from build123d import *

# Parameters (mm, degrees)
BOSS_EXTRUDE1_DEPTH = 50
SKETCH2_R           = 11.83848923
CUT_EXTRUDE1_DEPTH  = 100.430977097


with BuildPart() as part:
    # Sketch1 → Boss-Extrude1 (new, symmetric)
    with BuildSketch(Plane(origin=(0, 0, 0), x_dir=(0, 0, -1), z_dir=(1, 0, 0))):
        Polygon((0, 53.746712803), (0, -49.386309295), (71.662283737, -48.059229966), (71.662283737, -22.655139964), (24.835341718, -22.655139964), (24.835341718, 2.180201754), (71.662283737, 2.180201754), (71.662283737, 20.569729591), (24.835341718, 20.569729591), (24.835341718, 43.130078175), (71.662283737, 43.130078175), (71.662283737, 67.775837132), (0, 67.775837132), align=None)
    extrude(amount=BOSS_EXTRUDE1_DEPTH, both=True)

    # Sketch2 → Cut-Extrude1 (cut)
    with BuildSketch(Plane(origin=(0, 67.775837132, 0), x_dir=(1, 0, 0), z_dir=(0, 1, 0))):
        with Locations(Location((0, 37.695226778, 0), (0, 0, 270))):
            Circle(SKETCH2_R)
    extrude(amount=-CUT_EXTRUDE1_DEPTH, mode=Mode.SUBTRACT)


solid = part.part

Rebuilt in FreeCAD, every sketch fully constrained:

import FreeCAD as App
import Part
import Sketcher

V = App.Vector

doc = App.newDocument("Part")
body = doc.addObject("PartDesign::Body", "Body")

sketch1 = body.newObject("Sketcher::SketchObject", "Sketch")
sketch1.AttachmentSupport = (doc.getObject("YZ_Plane"), [""])
sketch1.MapMode = "FlatFace"
sketch1.addGeometry(Part.LineSegment(V(-49.386309, 0, 0), V(-48.05923, -71.662284, 0)), False)
sketch1.addGeometry(Part.LineSegment(V(-48.05923, -71.662284, 0), V(-22.65514, -71.662284, 0)), False)
sketch1.addGeometry(Part.LineSegment(V(-22.65514, -71.662284, 0), V(-22.65514, -24.835342, 0)), False)
sketch1.addGeometry(Part.LineSegment(V(-22.65514, -24.835342, 0), V(2.180202, -24.835342, 0)), False)
sketch1.addGeometry(Part.LineSegment(V(2.180202, -24.835342, 0), V(2.180202, -71.662284, 0)), False)
sketch1.addGeometry(Part.LineSegment(V(2.180202, -71.662284, 0), V(20.56973, -71.662284, 0)), False)
sketch1.addGeometry(Part.LineSegment(V(20.56973, -71.662284, 0), V(20.56973, -24.835342, 0)), False)
sketch1.addGeometry(Part.LineSegment(V(20.56973, -24.835342, 0), V(43.130078, -24.835342, 0)), False)
sketch1.addGeometry(Part.LineSegment(V(43.130078, -24.835342, 0), V(43.130078, -71.662284, 0)), False)
sketch1.addGeometry(Part.LineSegment(V(43.130078, -71.662284, 0), V(67.775837, -71.662284, 0)), False)
sketch1.addGeometry(Part.LineSegment(V(67.775837, -71.662284, 0), V(67.775837, 0, 0)), False)
sketch1.addGeometry(Part.LineSegment(V(67.775837, 0, 0), V(-49.386309, 0, 0)), False)
sketch1.addConstraint(Sketcher.Constraint("Coincident", 0, 2, 1, 1))
sketch1.addConstraint(Sketcher.Constraint("Coincident", 1, 2, 2, 1))
sketch1.addConstraint(Sketcher.Constraint("Coincident", 2, 2, 3, 1))
sketch1.addConstraint(Sketcher.Constraint("Coincident", 3, 2, 4, 1))
sketch1.addConstraint(Sketcher.Constraint("Coincident", 4, 2, 5, 1))
sketch1.addConstraint(Sketcher.Constraint("Coincident", 5, 2, 6, 1))
sketch1.addConstraint(Sketcher.Constraint("Coincident", 6, 2, 7, 1))
sketch1.addConstraint(Sketcher.Constraint("Coincident", 7, 2, 8, 1))
sketch1.addConstraint(Sketcher.Constraint("Coincident", 8, 2, 9, 1))
sketch1.addConstraint(Sketcher.Constraint("Coincident", 9, 2, 10, 1))
sketch1.addConstraint(Sketcher.Constraint("Coincident", 10, 2, 11, 1))
sketch1.addConstraint(Sketcher.Constraint("Coincident", 11, 2, 0, 1))
sketch1.addConstraint(Sketcher.Constraint("Horizontal", 1))
sketch1.addConstraint(Sketcher.Constraint("Vertical", 2))
sketch1.addConstraint(Sketcher.Constraint("Horizontal", 3))
sketch1.addConstraint(Sketcher.Constraint("Vertical", 4))
sketch1.addConstraint(Sketcher.Constraint("Horizontal", 5))
sketch1.addConstraint(Sketcher.Constraint("Vertical", 6))
sketch1.addConstraint(Sketcher.Constraint("Horizontal", 7))
sketch1.addConstraint(Sketcher.Constraint("Vertical", 8))
sketch1.addConstraint(Sketcher.Constraint("Horizontal", 9))
sketch1.addConstraint(Sketcher.Constraint("Vertical", 10))
sketch1.addConstraint(Sketcher.Constraint("Horizontal", 11))
sketch1.addConstraint(Sketcher.Constraint("PointOnObject", 10, 2, -1))
sketch1.addConstraint(Sketcher.Constraint("Horizontal", 1, 2, 4, 2))
sketch1.addConstraint(Sketcher.Constraint("Horizontal", 3, 2, 6, 2))
sketch1.addConstraint(Sketcher.Constraint("Horizontal", 5, 2, 8, 2))
sketch1.addConstraint(Sketcher.Constraint("DistanceX", 1, 1, 1, 2, 25.40409))
sketch1.addConstraint(Sketcher.Constraint("DistanceX", 3, 1, 3, 2, 24.835342))
sketch1.addConstraint(Sketcher.Constraint("DistanceX", 7, 1, 7, 2, 22.560349))
sketch1.addConstraint(Sketcher.Constraint("DistanceX", 9, 1, 9, 2, 24.645759))
sketch1.addConstraint(Sketcher.Constraint("DistanceX", -1, 1, 3, 2, 2.180202))
sketch1.addConstraint(Sketcher.Constraint("Distance", 0, 71.67457))
sketch1.addConstraint(Sketcher.Constraint("DistanceX", 5, 1, 5, 2, 18.389528))
sketch1.addConstraint(Sketcher.Constraint("DistanceX", 11, 2, 11, 1, 117.162146))
sketch1.addConstraint(Sketcher.Constraint("DistanceY", 2, 1, 2, 2, 46.826942))
pad1 = body.newObject("PartDesign::Pad", "Pad")
pad1.Profile = sketch1
pad1.Length = 100
pad1.Midplane = True

sketch2 = body.newObject("Sketcher::SketchObject", "Sketch001")
sketch2.AttachmentSupport = (doc.getObject("XZ_Plane"), [""])
sketch2.MapMode = "FlatFace"
sketch2.AttachmentOffset = App.Placement(V(0, 0, -67.775837), App.Rotation())
sketch2.addGeometry(Part.Circle(V(0, -37.695227, 0), V(0, 0, 1), 11.838489), False)
sketch2.addConstraint(Sketcher.Constraint("PointOnObject", 0, 3, -2))
sketch2.addConstraint(Sketcher.Constraint("Diameter", 0, 23.676978))
sketch2.addConstraint(Sketcher.Constraint("DistanceY", 0, 3, -1, 1, 37.695227))
pocket1 = body.newObject("PartDesign::Pocket", "Pocket")
pocket1.Profile = sketch2
pocket1.Length = 100.430977
pocket1.Reversed = True

doc.recompute()
